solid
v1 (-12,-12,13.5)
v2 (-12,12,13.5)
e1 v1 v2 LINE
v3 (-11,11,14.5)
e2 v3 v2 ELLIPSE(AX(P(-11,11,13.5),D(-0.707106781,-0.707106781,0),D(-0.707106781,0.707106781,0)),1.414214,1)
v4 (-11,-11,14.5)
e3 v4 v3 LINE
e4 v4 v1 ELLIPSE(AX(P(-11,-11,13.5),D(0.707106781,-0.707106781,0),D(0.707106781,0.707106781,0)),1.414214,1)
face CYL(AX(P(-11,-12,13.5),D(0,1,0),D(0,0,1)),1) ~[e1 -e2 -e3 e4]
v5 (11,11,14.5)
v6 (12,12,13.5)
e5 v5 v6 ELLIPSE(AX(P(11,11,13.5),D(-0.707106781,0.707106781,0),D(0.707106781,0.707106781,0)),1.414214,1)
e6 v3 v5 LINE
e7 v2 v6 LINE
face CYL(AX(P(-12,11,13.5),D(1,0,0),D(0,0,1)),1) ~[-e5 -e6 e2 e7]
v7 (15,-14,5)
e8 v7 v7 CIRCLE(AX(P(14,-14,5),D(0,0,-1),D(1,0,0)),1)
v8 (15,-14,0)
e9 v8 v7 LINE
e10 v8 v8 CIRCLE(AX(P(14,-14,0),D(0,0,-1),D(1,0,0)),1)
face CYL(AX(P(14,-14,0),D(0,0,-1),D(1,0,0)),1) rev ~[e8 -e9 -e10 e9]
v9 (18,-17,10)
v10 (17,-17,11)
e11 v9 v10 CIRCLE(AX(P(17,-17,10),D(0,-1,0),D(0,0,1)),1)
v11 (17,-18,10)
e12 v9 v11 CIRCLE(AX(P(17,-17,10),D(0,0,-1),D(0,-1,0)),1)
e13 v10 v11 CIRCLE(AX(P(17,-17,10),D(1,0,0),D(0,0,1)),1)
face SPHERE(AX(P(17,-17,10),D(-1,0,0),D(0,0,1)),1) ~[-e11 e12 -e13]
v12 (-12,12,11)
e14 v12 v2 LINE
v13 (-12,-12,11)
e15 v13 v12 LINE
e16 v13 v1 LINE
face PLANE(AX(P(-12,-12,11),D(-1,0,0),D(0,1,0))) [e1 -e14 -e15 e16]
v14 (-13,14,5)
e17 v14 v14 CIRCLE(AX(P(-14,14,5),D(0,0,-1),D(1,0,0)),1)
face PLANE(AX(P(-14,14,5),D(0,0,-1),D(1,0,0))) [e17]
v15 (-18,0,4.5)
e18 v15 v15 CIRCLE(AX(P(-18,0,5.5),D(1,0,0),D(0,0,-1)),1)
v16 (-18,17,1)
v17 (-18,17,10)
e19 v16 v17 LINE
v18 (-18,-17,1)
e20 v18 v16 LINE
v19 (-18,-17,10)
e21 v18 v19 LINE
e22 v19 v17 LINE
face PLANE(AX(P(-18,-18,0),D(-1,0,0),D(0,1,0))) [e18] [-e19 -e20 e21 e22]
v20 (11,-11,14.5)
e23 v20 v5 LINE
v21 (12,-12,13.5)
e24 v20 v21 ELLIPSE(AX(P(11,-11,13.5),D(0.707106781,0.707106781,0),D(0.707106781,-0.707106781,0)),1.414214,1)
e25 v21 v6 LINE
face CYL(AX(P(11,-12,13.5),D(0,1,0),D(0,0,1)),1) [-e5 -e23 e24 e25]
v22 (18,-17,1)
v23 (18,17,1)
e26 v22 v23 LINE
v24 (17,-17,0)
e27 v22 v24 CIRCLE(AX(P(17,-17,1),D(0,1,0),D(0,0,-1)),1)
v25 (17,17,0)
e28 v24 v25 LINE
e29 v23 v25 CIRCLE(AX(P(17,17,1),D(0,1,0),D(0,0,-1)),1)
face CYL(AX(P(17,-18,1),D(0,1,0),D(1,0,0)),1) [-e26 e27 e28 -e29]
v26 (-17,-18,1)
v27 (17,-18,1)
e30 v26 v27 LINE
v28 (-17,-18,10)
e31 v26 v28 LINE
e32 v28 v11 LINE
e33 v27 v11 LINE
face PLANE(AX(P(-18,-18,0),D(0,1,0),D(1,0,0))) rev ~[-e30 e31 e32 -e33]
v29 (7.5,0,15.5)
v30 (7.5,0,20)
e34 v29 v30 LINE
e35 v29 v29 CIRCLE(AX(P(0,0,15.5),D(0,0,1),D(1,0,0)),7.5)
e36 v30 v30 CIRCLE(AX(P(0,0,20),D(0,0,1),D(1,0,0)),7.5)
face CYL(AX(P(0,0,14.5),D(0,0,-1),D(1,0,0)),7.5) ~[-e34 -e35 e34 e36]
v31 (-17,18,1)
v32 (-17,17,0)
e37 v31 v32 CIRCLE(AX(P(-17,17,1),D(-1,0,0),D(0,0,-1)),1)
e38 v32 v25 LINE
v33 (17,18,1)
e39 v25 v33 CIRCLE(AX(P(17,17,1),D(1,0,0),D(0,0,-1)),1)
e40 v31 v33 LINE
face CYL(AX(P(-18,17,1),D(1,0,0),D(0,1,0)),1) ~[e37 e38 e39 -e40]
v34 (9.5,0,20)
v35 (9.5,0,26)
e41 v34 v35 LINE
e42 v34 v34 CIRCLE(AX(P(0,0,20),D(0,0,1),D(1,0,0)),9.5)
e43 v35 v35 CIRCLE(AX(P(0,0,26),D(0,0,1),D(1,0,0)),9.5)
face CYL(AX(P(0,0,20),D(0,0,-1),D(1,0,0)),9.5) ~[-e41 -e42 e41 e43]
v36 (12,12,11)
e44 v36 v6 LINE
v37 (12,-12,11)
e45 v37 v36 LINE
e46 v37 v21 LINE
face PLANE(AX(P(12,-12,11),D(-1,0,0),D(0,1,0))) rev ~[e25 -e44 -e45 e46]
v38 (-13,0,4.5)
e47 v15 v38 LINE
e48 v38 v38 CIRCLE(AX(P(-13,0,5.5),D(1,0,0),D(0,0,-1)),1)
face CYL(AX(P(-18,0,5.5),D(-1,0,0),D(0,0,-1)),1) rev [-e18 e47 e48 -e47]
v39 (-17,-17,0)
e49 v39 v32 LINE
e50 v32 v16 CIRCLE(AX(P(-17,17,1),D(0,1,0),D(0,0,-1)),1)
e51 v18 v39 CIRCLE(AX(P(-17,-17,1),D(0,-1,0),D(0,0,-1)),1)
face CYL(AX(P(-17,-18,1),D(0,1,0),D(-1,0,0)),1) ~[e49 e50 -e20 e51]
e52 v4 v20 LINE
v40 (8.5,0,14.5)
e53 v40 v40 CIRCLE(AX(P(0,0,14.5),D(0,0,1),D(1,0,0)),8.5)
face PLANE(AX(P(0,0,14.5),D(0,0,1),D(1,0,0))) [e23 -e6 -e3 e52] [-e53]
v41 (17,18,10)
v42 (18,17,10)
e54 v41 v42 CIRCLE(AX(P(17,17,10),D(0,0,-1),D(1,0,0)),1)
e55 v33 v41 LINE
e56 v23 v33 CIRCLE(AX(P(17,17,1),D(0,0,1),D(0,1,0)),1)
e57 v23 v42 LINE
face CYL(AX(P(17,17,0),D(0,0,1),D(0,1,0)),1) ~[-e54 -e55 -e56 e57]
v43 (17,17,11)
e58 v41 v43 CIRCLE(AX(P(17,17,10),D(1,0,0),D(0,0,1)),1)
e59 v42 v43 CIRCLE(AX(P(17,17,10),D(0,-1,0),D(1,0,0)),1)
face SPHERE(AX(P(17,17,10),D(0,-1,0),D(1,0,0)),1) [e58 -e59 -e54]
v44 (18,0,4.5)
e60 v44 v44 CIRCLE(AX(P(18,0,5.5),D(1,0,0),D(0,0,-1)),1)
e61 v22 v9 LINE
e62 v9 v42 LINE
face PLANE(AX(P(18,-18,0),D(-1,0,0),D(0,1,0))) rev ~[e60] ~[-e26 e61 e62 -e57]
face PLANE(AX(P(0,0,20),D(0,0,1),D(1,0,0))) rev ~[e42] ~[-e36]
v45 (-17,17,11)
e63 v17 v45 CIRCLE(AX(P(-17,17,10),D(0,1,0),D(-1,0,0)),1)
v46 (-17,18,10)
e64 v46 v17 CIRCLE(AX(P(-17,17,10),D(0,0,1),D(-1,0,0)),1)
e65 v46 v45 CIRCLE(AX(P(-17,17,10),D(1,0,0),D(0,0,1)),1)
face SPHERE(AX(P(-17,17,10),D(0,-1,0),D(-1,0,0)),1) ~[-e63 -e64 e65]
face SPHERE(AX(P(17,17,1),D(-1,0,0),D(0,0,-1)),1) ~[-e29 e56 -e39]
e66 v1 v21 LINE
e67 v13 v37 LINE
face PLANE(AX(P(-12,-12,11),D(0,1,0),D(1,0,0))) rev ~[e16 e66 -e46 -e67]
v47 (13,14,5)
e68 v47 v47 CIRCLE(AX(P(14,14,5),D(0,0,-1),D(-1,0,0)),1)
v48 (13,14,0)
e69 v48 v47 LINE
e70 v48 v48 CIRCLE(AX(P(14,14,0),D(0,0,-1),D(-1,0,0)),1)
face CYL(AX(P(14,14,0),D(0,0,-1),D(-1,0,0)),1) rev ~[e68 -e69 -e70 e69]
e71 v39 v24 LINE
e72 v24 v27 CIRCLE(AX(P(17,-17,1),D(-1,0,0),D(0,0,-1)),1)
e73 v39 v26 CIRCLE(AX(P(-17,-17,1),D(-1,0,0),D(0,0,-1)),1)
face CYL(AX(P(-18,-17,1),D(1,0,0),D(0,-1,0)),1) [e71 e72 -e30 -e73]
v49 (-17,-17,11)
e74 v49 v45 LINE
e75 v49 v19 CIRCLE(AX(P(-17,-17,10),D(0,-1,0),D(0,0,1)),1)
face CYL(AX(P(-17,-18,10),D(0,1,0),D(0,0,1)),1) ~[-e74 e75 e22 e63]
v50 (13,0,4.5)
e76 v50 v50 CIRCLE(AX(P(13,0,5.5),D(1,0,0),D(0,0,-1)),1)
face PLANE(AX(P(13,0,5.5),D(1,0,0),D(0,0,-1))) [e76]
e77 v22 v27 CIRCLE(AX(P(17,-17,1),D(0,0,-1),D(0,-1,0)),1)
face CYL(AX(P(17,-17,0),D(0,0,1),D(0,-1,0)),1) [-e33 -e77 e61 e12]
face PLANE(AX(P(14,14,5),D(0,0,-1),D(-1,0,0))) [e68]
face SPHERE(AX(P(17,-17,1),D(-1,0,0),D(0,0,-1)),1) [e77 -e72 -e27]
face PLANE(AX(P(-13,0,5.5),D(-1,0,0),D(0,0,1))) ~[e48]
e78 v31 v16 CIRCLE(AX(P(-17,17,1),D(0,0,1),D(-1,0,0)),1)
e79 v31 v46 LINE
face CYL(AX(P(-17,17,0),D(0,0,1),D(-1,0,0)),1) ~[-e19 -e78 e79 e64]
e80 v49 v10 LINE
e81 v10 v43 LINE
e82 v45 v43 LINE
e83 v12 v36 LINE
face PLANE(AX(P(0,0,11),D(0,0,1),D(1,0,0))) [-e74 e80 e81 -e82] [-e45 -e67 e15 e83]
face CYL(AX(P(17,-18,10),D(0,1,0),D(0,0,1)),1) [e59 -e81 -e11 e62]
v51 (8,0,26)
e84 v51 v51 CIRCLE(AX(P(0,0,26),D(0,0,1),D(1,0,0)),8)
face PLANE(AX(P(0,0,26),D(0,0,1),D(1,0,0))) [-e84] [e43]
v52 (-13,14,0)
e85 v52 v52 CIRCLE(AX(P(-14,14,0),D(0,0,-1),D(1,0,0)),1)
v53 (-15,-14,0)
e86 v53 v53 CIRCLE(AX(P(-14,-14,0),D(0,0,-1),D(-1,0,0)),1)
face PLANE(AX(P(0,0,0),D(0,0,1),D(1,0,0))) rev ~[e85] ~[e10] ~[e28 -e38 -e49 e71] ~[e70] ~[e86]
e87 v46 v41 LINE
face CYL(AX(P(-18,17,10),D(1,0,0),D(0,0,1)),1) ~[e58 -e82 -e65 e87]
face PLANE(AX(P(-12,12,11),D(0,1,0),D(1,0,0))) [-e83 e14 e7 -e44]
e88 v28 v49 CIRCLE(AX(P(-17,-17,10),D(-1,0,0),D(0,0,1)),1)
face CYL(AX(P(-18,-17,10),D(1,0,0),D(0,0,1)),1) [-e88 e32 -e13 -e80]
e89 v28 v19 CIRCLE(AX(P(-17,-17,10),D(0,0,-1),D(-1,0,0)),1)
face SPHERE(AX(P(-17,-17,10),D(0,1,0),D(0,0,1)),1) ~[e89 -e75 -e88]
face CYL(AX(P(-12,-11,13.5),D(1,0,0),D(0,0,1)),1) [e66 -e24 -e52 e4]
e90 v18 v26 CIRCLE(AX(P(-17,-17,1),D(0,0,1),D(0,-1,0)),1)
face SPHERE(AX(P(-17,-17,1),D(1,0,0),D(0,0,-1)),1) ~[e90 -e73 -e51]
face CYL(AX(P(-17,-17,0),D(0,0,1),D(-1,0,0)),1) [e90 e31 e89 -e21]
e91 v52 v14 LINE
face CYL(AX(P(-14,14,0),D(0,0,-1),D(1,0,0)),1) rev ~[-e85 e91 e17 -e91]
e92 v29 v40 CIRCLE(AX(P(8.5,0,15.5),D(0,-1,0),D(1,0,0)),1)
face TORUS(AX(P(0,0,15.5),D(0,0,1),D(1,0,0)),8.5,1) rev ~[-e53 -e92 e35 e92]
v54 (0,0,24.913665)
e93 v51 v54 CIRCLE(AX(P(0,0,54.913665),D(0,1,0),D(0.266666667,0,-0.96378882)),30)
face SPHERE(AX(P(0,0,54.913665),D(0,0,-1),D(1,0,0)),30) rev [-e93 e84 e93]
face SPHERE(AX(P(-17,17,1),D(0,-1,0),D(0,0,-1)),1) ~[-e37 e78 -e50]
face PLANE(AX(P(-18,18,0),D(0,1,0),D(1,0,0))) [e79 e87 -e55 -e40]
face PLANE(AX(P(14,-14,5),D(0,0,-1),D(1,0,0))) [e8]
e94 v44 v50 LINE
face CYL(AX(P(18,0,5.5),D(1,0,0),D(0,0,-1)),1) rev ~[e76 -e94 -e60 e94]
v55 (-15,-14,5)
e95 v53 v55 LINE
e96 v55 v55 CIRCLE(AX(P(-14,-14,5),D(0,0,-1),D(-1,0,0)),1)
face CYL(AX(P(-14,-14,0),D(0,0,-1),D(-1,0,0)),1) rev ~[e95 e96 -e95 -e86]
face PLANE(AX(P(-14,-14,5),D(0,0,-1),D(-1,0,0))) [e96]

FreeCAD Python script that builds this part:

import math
import FreeCAD as App
import Part
import Sketcher
from FreeCAD import Vector
Q = App.Units.Quantity


def edges_at(feature, points):
    """Names of the edges that pass closest to the given points."""
    edges = feature.Shape.Edges
    near = lambda p: min(range(len(edges)), key=lambda i: edges[i].distToShape(Part.Vertex(*p))[0])
    return sorted({f"Edge{near(p) + 1}" for p in points})


def add_polygon(sketch, points):
    """Adds a closed chain of lines whose ends are joined by coincident constraints."""
    first, n = sketch.GeometryCount, len(points)
    for a, b in zip(points, points[1:] + points[:1]):
        sketch.addGeometry(Part.LineSegment(App.Vector(*a, 0), App.Vector(*b, 0)), False)
    for i in range(n):
        sketch.addConstraint(Sketcher.Constraint("Coincident", first + i, 2, first + (i + 1) % n, 1))

doc = App.newDocument("Part")
body = doc.addObject("PartDesign::Body", "Body")

# Sketch on XY plane
sketch1 = body.newObject("Sketcher::SketchObject", "Sketch")
sketch1.AttachmentSupport = (doc.getObject("XY_Plane"), [""])
sketch1.MapMode = "FlatFace"
add_polygon(sketch1, [(-18, 18), (-18, -18), (18, -18), (18, 18)])  # lines 0-3
sketch1.addConstraint(Sketcher.Constraint("Vertical", 0))
sketch1.addConstraint(Sketcher.Constraint("Horizontal", 1))
sketch1.addConstraint(Sketcher.Constraint("Vertical", 2))
sketch1.addConstraint(Sketcher.Constraint("Horizontal", 3))
sketch1.addConstraint(Sketcher.Constraint("Symmetric", 0, 2, 2, 2, -1, 1))
sketch1.addConstraint(Sketcher.Constraint("Equal", 3, 0))
sketch1.addConstraint(Sketcher.Constraint("DistanceX", 1, 1, 1, 2, Q("36 mm")))
pad1 = body.newObject("PartDesign::Pad", "Pad")
pad1.Profile = sketch1
pad1.Length = 11

# Sketch on XY plane
sketch2 = body.newObject("Sketcher::SketchObject", "Sketch001")
sketch2.AttachmentSupport = (doc.getObject("XY_Plane"), [""])
sketch2.MapMode = "FlatFace"
sketch2.AttachmentOffset = App.Placement(Vector(0, 0, 11), App.Rotation())
add_polygon(sketch2, [(-12, 12), (-12, -12), (12, -12), (12, 12)])  # lines 0-3
sketch2.addConstraint(Sketcher.Constraint("Vertical", 0))
sketch2.addConstraint(Sketcher.Constraint("Horizontal", 1))
sketch2.addConstraint(Sketcher.Constraint("Vertical", 2))
sketch2.addConstraint(Sketcher.Constraint("Horizontal", 3))
sketch2.addConstraint(Sketcher.Constraint("Symmetric", 0, 2, 2, 2, -1, 1))
sketch2.addConstraint(Sketcher.Constraint("Equal", 3, 0))
sketch2.addConstraint(Sketcher.Constraint("DistanceX", 1, 1, 1, 2, Q("24 mm")))
pad2 = body.newObject("PartDesign::Pad", "Pad001")
pad2.Profile = sketch2
pad2.Length = 3.5

# Sketch on XY plane
sketch3 = body.newObject("Sketcher::SketchObject", "Sketch002")
sketch3.AttachmentSupport = (doc.getObject("XY_Plane"), [""])
sketch3.MapMode = "FlatFace"
sketch3.AttachmentOffset = App.Placement(Vector(0, 0, 14.5), App.Rotation())
sketch3.addGeometry(Part.Circle(Vector(0, 0, 0), Vector(0, 0, 1), 7.5), False)
sketch3.addConstraint(Sketcher.Constraint("Coincident", 0, 3, -1, 1))
sketch3.addConstraint(Sketcher.Constraint("Diameter", 0, Q("15 mm")))
pad3 = body.newObject("PartDesign::Pad", "Pad002")
pad3.Profile = sketch3
pad3.Length = 5.5

# Sketch on XY plane
sketch4 = body.newObject("Sketcher::SketchObject", "Sketch003")
sketch4.AttachmentSupport = (doc.getObject("XY_Plane"), [""])
sketch4.MapMode = "FlatFace"
sketch4.AttachmentOffset = App.Placement(Vector(0, 0, 20), App.Rotation())
sketch4.addGeometry(Part.Circle(Vector(0, 0, 0), Vector(0, 0, 1), 9.5), False)
sketch4.addConstraint(Sketcher.Constraint("Coincident", 0, 3, -1, 1))
sketch4.addConstraint(Sketcher.Constraint("Diameter", 0, Q("19 mm")))
pad4 = body.newObject("PartDesign::Pad", "Pad003")
pad4.Profile = sketch4
pad4.Length = 6

# Sketch on XZ plane
sketch5 = body.newObject("Sketcher::SketchObject", "Sketch004")
sketch5.AttachmentSupport = (doc.getObject("XZ_Plane"), [""])
sketch5.MapMode = "FlatFace"
sketch5.addGeometry(Part.LineSegment(Vector(0, 24.913665, 0), Vector(0, 26, 0)), False)
sketch5.addGeometry(Part.LineSegment(Vector(0, 26, 0), Vector(8, 26, 0)), False)
sketch5.addGeometry(Part.ArcOfCircle(Part.Circle(Vector(0, 54.913665, 0), Vector(0, 0, 1), 30), math.radians(-90), math.radians(-74.53399)), False)
sketch5.addConstraint(Sketcher.Constraint("Coincident", 0, 2, 1, 1))
sketch5.addConstraint(Sketcher.Constraint("Coincident", 1, 2, 2, 2))
sketch5.addConstraint(Sketcher.Constraint("Coincident", 2, 1, 0, 1))
sketch5.addConstraint(Sketcher.Constraint("Vertical", 0))
sketch5.addConstraint(Sketcher.Constraint("Horizontal", 1))
sketch5.addConstraint(Sketcher.Constraint("PointOnObject", 2, 3, -2))
sketch5.addConstraint(Sketcher.Constraint("PointOnObject", 0, 2, -2))
sketch5.addConstraint(Sketcher.Constraint("Radius", 2, Q("30 mm")))
sketch5.addConstraint(Sketcher.Constraint("DistanceX", 1, 1, 1, 2, Q("8 mm")))
sketch5.addConstraint(Sketcher.Constraint("DistanceY", -1, 1, 0, 2, Q("26 mm")))
groove = body.newObject("PartDesign::Groove", "Groove")
groove.Profile = sketch5
groove.ReferenceAxis = (sketch5, ["V_Axis"])
groove.Angle = 360
doc.recompute()

fillet = body.newObject("PartDesign::Fillet", "Fillet")
fillet.Base = (groove, edges_at(groove, [
    (-18, 0, 11),
    (0, -18, 11),
    (-12, 0, 14.5),
    (0, -12, 14.5),
    (12, 0, 14.5),
    (0, 12, 14.5),
    (-7.5, 0, 14.5),
    (18, 0, 11),
    (0, -18, 0),
    (-18, 0, 0),
    (0, 18, 0),
    (18, 0, 0),
    (18, -18, 5.5),
    (-18, -18, 5.5),
    (-18, 18, 5.5),
    (18, 18, 5.5),
    (0, 18, 11),
]))
fillet.Radius = 1

# Sketch on YZ plane
sketch6 = body.newObject("Sketcher::SketchObject", "Sketch005")
sketch6.AttachmentSupport = (doc.getObject("YZ_Plane"), [""])
sketch6.MapMode = "FlatFace"
sketch6.AttachmentOffset = App.Placement(Vector(0, 0, 18), App.Rotation())
sketch6.addGeometry(Part.Circle(Vector(0, 5.5, 0), Vector(0, 0, 1), 1), False)
sketch6.addConstraint(Sketcher.Constraint("PointOnObject", 0, 3, -2))
sketch6.addConstraint(Sketcher.Constraint("Diameter", 0, Q("2 mm")))
sketch6.addConstraint(Sketcher.Constraint("DistanceY", -1, 1, 0, 3, Q("5.5 mm")))
pocket1 = body.newObject("PartDesign::Pocket", "Pocket")
pocket1.Profile = sketch6
pocket1.Length = 5
doc.recompute()

mirrored = body.newObject("PartDesign::Mirrored", "Mirrored")
mirrored.Originals = [pocket1]
mirrored.MirrorPlane = (doc.getObject("YZ_Plane"), [""])
body.Tip = mirrored

# Sketch on XY plane
sketch7 = body.newObject("Sketcher::SketchObject", "Sketch006")
sketch7.AttachmentSupport = (doc.getObject("XY_Plane"), [""])
sketch7.MapMode = "FlatFace"
sketch7.addGeometry(Part.Circle(Vector(14, 14, 0), Vector(0, 0, 1), 1), False)
sketch7.addGeometry(Part.Circle(Vector(14, -14, 0), Vector(0, 0, 1), 1), False)
sketch7.addGeometry(Part.Circle(Vector(-14, -14, 0), Vector(0, 0, 1), 1), False)
sketch7.addGeometry(Part.Circle(Vector(-14, 14, 0), Vector(0, 0, 1), 1), False)
sketch7.addConstraint(Sketcher.Constraint("Equal", 0, 1))
sketch7.addConstraint(Sketcher.Constraint("Equal", 1, 2))
sketch7.addConstraint(Sketcher.Constraint("Equal", 2, 3))
sketch7.addConstraint(Sketcher.Constraint("Symmetric", 0, 3, 2, 3, -1, 1))
sketch7.addConstraint(Sketcher.Constraint("Symmetric", 1, 3, 3, 3, -1, 1))
sketch7.addConstraint(Sketcher.Constraint("Symmetric", 1, 3, 2, 3, -2))
sketch7.addConstraint(Sketcher.Constraint("Diameter", 0, Q("2 mm")))
sketch7.addConstraint(Sketcher.Constraint("DistanceX", -1, 1, 0, 3, Q("14 mm")))
sketch7.addConstraint(Sketcher.Constraint("DistanceY", -1, 1, 0, 3, Q("14 mm")))
pocket2 = body.newObject("PartDesign::Pocket", "Pocket001")
pocket2.Profile = sketch7
pocket2.Length = 5
pocket2.Reversed = True

doc.recompute()
